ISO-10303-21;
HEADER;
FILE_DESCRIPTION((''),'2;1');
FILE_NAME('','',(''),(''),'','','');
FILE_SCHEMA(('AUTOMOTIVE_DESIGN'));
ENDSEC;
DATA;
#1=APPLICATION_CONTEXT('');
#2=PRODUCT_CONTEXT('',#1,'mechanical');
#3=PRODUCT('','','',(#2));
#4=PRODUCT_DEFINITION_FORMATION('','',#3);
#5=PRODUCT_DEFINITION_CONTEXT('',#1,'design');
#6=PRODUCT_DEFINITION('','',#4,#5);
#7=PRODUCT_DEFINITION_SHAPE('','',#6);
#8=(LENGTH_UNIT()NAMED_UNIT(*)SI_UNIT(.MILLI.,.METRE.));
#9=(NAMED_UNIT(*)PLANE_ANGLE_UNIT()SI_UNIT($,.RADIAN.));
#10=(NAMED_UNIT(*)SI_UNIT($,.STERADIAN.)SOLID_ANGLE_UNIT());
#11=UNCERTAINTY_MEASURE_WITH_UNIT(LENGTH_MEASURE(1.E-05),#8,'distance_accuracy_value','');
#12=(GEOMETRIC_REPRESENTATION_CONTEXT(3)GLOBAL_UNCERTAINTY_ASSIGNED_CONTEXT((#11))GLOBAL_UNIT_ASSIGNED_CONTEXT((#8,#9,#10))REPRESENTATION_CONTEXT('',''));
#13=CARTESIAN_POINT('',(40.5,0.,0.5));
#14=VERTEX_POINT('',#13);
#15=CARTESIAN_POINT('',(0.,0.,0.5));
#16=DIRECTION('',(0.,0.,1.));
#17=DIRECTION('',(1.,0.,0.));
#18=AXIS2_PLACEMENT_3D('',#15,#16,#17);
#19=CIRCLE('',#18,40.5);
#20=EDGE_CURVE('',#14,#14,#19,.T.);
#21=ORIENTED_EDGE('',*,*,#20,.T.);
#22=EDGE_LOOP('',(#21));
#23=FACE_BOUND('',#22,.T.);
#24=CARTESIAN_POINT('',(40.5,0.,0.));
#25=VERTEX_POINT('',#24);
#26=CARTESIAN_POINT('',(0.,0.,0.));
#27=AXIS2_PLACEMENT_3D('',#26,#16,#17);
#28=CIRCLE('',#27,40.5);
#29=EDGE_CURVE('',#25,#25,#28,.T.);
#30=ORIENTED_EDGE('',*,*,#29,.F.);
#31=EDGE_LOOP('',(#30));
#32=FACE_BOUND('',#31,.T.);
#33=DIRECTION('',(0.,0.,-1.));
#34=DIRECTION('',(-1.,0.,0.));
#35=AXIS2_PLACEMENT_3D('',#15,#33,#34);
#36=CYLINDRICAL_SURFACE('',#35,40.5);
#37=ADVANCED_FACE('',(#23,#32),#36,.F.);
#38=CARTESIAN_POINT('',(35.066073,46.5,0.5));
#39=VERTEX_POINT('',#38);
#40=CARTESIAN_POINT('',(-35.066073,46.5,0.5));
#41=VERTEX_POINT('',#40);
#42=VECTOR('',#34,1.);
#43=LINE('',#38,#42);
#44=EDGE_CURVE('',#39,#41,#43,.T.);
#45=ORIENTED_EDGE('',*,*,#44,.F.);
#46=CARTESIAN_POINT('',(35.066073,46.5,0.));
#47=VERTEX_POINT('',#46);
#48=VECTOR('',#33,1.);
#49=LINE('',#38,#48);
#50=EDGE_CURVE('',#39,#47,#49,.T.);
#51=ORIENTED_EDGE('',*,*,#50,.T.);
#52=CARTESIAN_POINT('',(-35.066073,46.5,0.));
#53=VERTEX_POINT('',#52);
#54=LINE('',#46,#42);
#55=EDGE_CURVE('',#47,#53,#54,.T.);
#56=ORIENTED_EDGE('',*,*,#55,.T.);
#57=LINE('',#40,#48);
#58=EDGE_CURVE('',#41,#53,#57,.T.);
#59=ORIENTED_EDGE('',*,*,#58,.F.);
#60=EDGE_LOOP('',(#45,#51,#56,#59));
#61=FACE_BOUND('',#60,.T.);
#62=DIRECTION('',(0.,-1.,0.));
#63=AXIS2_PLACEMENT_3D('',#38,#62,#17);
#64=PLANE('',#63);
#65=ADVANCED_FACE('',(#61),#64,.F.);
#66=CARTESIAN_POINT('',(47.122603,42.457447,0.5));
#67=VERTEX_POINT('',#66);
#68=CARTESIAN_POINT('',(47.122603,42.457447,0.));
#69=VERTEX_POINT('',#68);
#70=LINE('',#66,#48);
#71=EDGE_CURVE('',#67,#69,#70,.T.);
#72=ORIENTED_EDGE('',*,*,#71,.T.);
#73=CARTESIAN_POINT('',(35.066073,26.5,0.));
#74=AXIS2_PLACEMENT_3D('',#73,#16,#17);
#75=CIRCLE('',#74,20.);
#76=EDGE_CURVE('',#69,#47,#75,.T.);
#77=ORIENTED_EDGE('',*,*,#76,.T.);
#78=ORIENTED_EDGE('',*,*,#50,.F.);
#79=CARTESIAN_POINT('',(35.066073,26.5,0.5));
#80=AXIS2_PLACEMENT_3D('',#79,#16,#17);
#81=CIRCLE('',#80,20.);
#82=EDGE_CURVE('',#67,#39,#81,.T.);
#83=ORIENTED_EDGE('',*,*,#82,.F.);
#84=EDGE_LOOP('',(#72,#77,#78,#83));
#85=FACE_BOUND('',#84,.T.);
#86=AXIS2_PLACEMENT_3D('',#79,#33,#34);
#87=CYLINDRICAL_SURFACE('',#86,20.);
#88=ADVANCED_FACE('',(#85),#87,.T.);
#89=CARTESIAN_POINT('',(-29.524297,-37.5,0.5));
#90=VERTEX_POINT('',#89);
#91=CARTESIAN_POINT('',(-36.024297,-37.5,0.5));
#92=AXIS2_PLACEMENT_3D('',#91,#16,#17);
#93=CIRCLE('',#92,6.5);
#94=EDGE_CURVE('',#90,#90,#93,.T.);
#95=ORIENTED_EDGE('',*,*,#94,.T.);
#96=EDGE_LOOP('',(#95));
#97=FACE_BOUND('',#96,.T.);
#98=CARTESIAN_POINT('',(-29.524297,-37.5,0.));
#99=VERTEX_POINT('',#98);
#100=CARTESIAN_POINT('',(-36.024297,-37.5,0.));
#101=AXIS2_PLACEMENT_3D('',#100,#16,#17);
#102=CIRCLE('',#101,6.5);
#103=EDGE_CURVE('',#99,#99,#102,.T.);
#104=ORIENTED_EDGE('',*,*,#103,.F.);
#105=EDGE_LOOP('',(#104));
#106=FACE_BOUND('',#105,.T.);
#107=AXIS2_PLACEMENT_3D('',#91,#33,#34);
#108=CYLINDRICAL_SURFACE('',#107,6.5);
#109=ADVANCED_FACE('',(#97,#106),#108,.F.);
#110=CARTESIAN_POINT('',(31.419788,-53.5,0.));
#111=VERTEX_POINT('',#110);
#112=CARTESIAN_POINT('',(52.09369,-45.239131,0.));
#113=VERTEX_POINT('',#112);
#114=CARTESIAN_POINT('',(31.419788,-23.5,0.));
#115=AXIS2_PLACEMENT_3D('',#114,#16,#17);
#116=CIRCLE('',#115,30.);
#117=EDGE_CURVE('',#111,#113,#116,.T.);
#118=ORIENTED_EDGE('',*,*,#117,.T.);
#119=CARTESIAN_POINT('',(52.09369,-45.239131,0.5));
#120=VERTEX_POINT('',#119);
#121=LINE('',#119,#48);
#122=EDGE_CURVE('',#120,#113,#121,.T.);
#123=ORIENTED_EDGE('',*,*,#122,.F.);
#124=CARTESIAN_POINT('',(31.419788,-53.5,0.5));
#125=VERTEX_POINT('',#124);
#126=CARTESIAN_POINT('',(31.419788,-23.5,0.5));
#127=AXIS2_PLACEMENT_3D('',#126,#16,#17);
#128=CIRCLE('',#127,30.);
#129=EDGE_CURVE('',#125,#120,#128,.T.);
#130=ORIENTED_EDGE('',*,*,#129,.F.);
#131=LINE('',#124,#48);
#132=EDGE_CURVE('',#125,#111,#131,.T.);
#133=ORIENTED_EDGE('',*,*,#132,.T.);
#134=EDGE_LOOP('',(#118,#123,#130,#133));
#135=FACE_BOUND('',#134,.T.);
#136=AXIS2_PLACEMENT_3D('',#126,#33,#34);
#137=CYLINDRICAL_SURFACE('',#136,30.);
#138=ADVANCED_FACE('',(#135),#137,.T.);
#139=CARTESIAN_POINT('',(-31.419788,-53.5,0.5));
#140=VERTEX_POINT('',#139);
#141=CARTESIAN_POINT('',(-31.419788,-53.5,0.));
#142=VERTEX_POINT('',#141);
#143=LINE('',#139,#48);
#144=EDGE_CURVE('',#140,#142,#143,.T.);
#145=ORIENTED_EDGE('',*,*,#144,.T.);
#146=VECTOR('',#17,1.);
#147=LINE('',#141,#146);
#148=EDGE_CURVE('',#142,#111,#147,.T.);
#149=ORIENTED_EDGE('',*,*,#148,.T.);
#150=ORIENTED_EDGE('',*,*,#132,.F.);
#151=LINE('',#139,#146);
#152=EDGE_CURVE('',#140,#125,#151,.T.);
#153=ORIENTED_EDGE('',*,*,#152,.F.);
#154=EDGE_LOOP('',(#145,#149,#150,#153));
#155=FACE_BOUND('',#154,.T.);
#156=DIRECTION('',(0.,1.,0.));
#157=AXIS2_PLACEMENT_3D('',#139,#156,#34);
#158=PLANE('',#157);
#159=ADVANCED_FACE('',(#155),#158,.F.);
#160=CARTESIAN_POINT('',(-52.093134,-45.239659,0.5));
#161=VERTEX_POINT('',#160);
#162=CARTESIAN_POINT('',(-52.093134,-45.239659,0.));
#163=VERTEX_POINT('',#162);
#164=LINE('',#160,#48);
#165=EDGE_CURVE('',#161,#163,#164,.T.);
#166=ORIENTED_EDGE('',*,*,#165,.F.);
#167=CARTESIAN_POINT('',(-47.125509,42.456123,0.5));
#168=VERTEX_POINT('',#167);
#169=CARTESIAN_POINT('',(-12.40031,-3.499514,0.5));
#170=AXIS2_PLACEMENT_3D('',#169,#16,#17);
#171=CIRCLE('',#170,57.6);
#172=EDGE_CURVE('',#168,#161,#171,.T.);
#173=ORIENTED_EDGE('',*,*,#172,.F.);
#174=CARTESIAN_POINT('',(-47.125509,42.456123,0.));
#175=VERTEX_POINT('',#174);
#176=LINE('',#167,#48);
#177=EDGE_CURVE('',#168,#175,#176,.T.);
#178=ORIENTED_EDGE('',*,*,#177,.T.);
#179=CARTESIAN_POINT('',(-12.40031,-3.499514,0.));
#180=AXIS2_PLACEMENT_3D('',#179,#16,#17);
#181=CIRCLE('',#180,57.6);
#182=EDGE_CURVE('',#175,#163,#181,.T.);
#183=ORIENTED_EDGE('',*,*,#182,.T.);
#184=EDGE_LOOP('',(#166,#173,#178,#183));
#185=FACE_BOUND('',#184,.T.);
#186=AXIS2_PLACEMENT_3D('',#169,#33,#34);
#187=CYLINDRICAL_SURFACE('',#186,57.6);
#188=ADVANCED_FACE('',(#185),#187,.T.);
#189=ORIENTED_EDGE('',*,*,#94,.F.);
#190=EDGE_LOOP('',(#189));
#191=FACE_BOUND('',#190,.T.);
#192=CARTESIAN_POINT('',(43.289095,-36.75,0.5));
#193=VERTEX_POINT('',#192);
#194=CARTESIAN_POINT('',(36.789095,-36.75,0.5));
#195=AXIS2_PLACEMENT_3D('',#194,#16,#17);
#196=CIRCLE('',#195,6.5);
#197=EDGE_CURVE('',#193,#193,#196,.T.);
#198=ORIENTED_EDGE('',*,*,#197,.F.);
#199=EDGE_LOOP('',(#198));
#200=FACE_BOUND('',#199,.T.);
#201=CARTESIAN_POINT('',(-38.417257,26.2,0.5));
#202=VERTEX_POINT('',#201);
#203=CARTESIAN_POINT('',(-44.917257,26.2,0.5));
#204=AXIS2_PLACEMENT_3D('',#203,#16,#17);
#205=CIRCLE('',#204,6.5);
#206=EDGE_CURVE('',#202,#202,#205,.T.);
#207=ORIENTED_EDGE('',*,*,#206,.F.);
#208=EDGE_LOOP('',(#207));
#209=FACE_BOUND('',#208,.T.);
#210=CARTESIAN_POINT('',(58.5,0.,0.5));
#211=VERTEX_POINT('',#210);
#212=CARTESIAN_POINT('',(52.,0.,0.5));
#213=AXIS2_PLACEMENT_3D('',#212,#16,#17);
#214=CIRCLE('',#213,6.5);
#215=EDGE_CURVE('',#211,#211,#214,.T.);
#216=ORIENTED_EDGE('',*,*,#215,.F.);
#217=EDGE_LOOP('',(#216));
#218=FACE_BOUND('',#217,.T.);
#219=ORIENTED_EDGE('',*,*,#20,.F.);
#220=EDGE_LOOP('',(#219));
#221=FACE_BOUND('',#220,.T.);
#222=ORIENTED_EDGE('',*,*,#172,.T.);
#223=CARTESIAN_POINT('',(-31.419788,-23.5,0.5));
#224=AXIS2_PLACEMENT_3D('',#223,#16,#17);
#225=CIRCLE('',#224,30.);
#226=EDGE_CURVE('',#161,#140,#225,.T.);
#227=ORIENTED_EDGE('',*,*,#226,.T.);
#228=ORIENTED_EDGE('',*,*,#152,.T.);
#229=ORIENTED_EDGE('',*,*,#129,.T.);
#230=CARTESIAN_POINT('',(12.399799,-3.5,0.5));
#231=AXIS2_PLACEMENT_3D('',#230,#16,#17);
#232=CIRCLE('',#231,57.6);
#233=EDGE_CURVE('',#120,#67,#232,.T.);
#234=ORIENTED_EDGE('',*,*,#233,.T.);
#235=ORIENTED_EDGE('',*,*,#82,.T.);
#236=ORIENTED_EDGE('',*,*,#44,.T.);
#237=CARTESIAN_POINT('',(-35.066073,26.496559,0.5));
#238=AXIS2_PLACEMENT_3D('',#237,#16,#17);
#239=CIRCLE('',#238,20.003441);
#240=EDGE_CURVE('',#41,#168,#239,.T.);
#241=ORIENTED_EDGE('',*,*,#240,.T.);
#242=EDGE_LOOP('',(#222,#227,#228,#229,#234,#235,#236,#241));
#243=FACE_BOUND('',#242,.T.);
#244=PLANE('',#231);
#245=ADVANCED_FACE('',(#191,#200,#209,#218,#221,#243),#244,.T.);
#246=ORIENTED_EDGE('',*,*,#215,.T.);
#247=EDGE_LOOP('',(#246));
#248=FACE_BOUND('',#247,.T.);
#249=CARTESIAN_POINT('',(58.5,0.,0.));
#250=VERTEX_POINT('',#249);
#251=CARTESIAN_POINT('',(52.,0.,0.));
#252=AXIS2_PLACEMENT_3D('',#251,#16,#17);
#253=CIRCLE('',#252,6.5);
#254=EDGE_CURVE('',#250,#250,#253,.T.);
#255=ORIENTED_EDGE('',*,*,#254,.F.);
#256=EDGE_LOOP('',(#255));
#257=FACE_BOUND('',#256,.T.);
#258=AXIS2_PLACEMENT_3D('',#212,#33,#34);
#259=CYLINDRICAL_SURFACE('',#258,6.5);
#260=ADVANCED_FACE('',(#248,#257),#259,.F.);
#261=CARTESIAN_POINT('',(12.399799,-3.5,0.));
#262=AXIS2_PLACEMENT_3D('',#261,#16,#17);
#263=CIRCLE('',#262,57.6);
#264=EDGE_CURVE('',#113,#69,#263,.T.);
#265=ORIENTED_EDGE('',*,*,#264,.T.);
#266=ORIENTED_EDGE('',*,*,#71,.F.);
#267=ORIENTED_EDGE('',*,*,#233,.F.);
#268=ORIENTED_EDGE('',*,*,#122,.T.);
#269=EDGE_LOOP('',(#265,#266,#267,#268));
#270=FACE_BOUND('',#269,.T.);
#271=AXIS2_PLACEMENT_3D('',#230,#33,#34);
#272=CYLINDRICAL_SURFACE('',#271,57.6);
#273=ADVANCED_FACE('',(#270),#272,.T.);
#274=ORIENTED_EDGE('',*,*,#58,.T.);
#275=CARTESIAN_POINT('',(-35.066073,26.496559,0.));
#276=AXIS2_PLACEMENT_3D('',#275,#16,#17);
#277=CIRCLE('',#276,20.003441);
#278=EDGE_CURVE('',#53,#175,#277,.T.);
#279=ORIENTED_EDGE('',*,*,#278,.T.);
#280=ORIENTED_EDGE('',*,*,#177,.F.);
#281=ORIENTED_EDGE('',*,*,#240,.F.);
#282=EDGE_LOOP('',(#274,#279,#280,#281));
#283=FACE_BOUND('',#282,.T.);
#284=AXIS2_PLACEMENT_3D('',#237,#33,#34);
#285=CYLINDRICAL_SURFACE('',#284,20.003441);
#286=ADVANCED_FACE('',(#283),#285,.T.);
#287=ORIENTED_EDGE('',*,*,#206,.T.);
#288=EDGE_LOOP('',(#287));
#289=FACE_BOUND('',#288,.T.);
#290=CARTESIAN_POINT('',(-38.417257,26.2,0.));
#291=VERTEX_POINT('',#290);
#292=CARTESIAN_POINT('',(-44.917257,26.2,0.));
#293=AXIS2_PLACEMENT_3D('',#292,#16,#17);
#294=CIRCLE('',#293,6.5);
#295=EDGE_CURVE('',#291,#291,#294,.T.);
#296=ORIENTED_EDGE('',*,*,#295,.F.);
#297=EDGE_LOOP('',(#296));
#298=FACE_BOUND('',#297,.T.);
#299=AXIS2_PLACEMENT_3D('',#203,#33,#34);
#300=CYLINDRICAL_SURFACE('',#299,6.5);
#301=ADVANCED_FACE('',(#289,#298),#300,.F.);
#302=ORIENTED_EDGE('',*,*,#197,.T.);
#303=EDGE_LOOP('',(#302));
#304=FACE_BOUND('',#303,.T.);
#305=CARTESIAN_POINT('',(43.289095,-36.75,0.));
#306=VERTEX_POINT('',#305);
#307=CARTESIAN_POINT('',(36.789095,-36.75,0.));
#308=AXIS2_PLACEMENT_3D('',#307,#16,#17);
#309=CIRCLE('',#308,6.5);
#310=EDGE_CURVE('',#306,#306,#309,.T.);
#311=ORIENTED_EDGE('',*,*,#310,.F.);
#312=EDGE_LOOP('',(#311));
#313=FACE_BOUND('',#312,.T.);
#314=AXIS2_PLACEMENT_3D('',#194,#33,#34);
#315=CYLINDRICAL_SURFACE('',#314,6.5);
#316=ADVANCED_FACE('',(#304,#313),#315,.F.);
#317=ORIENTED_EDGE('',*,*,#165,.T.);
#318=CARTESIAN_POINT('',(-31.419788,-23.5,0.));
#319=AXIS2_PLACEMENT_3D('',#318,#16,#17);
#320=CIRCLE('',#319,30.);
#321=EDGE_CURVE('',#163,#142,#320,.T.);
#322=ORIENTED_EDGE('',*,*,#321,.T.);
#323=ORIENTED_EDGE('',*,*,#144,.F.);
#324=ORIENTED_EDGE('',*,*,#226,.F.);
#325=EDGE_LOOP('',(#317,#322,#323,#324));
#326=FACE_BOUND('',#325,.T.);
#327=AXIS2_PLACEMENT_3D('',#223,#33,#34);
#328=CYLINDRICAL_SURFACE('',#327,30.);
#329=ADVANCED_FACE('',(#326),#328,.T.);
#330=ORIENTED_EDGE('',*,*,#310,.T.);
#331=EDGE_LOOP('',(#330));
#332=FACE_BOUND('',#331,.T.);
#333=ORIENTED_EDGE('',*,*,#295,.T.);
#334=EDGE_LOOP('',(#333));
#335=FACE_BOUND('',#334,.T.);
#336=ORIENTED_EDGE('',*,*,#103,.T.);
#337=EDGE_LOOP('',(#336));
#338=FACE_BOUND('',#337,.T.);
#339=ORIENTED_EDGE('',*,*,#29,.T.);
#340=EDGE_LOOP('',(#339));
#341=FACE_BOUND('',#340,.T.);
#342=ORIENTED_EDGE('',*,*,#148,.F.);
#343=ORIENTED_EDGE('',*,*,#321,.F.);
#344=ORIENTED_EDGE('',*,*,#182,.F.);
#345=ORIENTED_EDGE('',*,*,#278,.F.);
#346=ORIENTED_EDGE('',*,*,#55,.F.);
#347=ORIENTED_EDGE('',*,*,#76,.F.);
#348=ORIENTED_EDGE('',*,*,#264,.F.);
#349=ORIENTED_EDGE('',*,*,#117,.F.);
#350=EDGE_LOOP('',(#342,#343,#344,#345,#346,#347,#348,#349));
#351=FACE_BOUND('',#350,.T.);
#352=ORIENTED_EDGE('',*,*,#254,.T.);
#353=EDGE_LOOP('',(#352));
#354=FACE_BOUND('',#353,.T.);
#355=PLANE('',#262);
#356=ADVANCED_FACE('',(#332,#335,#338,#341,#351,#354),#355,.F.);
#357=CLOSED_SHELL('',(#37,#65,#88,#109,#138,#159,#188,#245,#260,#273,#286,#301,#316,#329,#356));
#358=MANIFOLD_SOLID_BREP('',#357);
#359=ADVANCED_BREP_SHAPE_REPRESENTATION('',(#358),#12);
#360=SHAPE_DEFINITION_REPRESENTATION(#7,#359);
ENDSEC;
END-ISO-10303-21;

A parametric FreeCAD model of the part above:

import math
import FreeCAD as App
import Part
import Sketcher
from FreeCAD import Vector
Q = App.Units.Quantity

doc = App.newDocument("Part")
body = doc.addObject("PartDesign::Body", "Body")

# Sketch on XY plane
sketch1 = doc.addObject("Sketcher::SketchObject", "Sketch")
body.addObject(sketch1)
sketch1.AttachmentSupport = (doc.XY_Plane, [""])
sketch1.MapMode = "FlatFace"
sketch1.addGeometry(Part.LineSegment(Vector(-31, -54, 0), Vector(31, -54, 0)), False)
sketch1.addGeometry(Part.ArcOfCircle(Part.Circle(Vector(31, -24, 0), Vector(0, 0, 1), 30), math.radians(-90), math.radians(-46)), False)
sketch1.addGeometry(Part.ArcOfCircle(Part.Circle(Vector(12, -4, 0), Vector(0, 0, 1), 58), math.radians(-46), math.radians(53)), False)
sketch1.addGeometry(Part.ArcOfCircle(Part.Circle(Vector(35, 26, 0), Vector(0, 0, 1), 20), math.radians(53), math.radians(90)), False)
sketch1.addGeometry(Part.LineSegment(Vector(35, 46, 0), Vector(-35, 46, 0)), False)
sketch1.addGeometry(Part.ArcOfCircle(Part.Circle(Vector(-35, 26, 0), Vector(0, 0, 1), 20), math.radians(90), math.radians(127)), False)
sketch1.addGeometry(Part.ArcOfCircle(Part.Circle(Vector(-12, -3, 0), Vector(0, 0, 1), 58), math.radians(127), math.radians(226)), False)
sketch1.addGeometry(Part.ArcOfCircle(Part.Circle(Vector(-31, -24, 0), Vector(0, 0, 1), 30), math.radians(-134), math.radians(-90)), False)
sketch1.addGeometry(Part.Circle(Vector(-36, -38, 0), Vector(0, 0, 1), 6), False)
sketch1.addGeometry(Part.Circle(Vector(37, -37, 0), Vector(0, 0, 1), 6), False)
sketch1.addGeometry(Part.Circle(Vector(0, 0, 0), Vector(0, 0, 1), 40), False)
sketch1.addGeometry(Part.Circle(Vector(-45, 26, 0), Vector(0, 0, 1), 6), False)
sketch1.addGeometry(Part.Circle(Vector(52, 0, 0), Vector(0, 0, 1), 6), False)
sketch1.addConstraint(Sketcher.Constraint("Tangent", 0, 2, 1, 1))
sketch1.addConstraint(Sketcher.Constraint("Tangent", 1, 2, 2, 1))
sketch1.addConstraint(Sketcher.Constraint("Tangent", 2, 2, 3, 1))
sketch1.addConstraint(Sketcher.Constraint("Tangent", 3, 2, 4, 1))
sketch1.addConstraint(Sketcher.Constraint("Tangent", 4, 2, 5, 1))
sketch1.addConstraint(Sketcher.Constraint("Tangent", 5, 2, 6, 1))
sketch1.addConstraint(Sketcher.Constraint("Tangent", 6, 2, 7, 1))
sketch1.addConstraint(Sketcher.Constraint("Tangent", 7, 2, 0, 1))
sketch1.addConstraint(Sketcher.Constraint("Horizontal", 0))
sketch1.addConstraint(Sketcher.Constraint("Horizontal", 4))
sketch1.addConstraint(Sketcher.Constraint("Coincident", 10, 3, -1, 1))
sketch1.addConstraint(Sketcher.Constraint("Equal", 2, 6))
sketch1.addConstraint(Sketcher.Constraint("Equal", 1, 7))
sketch1.addConstraint(Sketcher.Constraint("Equal", 8, 9))
sketch1.addConstraint(Sketcher.Constraint("Equal", 9, 11))
sketch1.addConstraint(Sketcher.Constraint("Equal", 11, 12))
sketch1.addConstraint(Sketcher.Constraint("PointOnObject", 12, 3, -1))
sketch1.addConstraint(Sketcher.Constraint("Diameter", 8, Q("13 mm")))
sketch1.addConstraint(Sketcher.Constraint("Diameter", 10, Q("81 mm")))
sketch1.addConstraint(Sketcher.Constraint("Radius", 1, Q("30 mm")))
sketch1.addConstraint(Sketcher.Constraint("Radius", 3, Q("20 mm")))
sketch1.addConstraint(Sketcher.Constraint("Radius", 2, Q("57.6 mm")))
sketch1.addConstraint(Sketcher.Constraint("DistanceX", -1, 1, 12, 3, Q("52 mm")))
sketch1.addConstraint(Sketcher.Constraint("DistanceY", 1, 3, 2, 3, Q("20 mm")))
sketch1.addConstraint(Sketcher.Constraint("DistanceY", 2, 3, 3, 3, Q("30 mm")))
sketch1.addConstraint(Sketcher.Constraint("DistanceY", 8, 3, 7, 3, Q("14 mm")))
sketch1.addConstraint(Sketcher.Constraint("DistanceY", 1, 3, -1, 1, Q("23.5 mm")))
sketch1.addConstraint(Sketcher.Constraint("DistanceY", -1, 1, 11, 3, Q("26.2 mm")))
sketch1.addConstraint(Sketcher.Constraint("DistanceY", 9, 3, -1, 1, Q("36.75 mm")))
sketch1.addConstraint(Sketcher.Constraint("Radius", 5, Q("20.003441 mm")))
sketch1.addConstraint(Sketcher.Constraint("DistanceX", -1, 1, 2, 3, Q("12.399799 mm")))
sketch1.addConstraint(Sketcher.Constraint("DistanceX", 5, 2, 6, 3, Q("34.725199 mm")))
sketch1.addConstraint(Sketcher.Constraint("DistanceX", 0, 1, 0, 2, Q("62.839576 mm")))
sketch1.addConstraint(Sketcher.Constraint("DistanceX", 8, 3, 7, 3, Q("4.604509 mm")))
sketch1.addConstraint(Sketcher.Constraint("DistanceX", 3, 3, 9, 3, Q("1.723021 mm")))
sketch1.addConstraint(Sketcher.Constraint("DistanceX", 11, 3, 7, 3, Q("13.497469 mm")))
pad1 = doc.addObject("PartDesign::Pad", "Pad")
body.addObject(pad1)
pad1.Profile = sketch1
pad1.Length = 0.5

doc.recompute()
